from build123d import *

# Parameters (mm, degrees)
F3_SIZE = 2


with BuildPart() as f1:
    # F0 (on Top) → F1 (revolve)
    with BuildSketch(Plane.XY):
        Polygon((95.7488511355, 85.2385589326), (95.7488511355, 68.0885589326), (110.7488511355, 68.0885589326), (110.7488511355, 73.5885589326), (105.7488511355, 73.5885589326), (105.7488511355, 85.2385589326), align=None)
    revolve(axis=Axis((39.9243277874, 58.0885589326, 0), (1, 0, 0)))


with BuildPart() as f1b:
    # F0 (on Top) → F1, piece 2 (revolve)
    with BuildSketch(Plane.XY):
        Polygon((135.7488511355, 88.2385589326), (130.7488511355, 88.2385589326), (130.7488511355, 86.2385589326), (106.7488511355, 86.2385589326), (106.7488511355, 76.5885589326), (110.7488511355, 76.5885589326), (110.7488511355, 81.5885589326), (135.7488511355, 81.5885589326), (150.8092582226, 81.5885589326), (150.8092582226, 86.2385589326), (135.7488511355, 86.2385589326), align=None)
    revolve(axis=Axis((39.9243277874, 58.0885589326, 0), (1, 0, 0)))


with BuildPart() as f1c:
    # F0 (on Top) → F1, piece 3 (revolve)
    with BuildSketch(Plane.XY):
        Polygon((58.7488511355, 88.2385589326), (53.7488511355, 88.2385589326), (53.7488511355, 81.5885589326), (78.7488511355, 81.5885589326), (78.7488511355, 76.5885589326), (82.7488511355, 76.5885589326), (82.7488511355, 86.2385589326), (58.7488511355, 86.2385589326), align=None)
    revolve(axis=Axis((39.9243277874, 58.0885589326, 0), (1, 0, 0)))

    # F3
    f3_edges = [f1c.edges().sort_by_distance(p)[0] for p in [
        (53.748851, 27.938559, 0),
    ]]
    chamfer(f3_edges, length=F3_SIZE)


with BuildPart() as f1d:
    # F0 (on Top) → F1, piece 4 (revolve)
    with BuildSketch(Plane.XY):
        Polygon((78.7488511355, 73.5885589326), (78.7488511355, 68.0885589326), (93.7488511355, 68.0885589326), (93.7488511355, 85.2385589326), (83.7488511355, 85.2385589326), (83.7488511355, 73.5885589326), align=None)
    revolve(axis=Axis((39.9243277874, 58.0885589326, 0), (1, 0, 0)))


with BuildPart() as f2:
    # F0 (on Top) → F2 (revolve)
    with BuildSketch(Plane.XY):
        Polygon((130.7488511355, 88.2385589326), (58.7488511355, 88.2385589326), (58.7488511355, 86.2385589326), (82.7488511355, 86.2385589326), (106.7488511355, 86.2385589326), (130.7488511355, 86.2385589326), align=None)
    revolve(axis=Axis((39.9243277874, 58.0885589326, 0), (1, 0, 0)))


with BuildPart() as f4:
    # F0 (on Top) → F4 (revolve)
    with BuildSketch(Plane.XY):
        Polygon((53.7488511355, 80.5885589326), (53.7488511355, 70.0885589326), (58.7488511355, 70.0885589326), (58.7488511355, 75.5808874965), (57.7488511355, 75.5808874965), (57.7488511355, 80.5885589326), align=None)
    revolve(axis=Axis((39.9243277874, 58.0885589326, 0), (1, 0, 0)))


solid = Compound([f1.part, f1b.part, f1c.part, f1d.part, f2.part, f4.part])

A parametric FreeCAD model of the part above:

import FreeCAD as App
import Part
import Sketcher
from FreeCAD import Vector


def edges_at(feature, points):
    """Names of the edges that pass closest to the given points."""
    edges = feature.Shape.Edges
    near = lambda p: min(range(len(edges)), key=lambda i: edges[i].distToShape(Part.Vertex(*p))[0])
    return sorted({f"Edge{near(p) + 1}" for p in points})

doc = App.newDocument("Part")
body = doc.addObject("PartDesign::Body", "Body")

sketch1 = body.newObject("Sketcher::SketchObject", "Sketch")
sketch1.AttachmentSupport = (doc.getObject("XY_Plane"), [""])
sketch1.MapMode = "FlatFace"
sketch1.addGeometry([
    Part.LineSegment(Vector(96, 85, 0), Vector(96, 68, 0)),
    Part.LineSegment(Vector(96, 68, 0), Vector(111, 68, 0)),
    Part.LineSegment(Vector(111, 68, 0), Vector(111, 74, 0)),
    Part.LineSegment(Vector(111, 74, 0), Vector(106, 74, 0)),
    Part.LineSegment(Vector(106, 74, 0), Vector(106, 85, 0)),
    Part.LineSegment(Vector(106, 85, 0), Vector(96, 85, 0)),
], False)
sketch1.addGeometry(Part.LineSegment(Vector(96, 58, 0), Vector(111, 58, 0)), True)
sketch1.addConstraint([
    Sketcher.Constraint("Coincident", 0, 2, 1, 1),
    Sketcher.Constraint("Coincident", 1, 2, 2, 1),
    Sketcher.Constraint("Coincident", 2, 2, 3, 1),
    Sketcher.Constraint("Coincident", 3, 2, 4, 1),
    Sketcher.Constraint("Coincident", 4, 2, 5, 1),
    Sketcher.Constraint("Coincident", 5, 2, 0, 1),
    Sketcher.Constraint("Vertical", 0),
    Sketcher.Constraint("Horizontal", 1),
    Sketcher.Constraint("Vertical", 2),
    Sketcher.Constraint("Horizontal", 3),
    Sketcher.Constraint("Vertical", 4),
    Sketcher.Constraint("Horizontal", 5),
    Sketcher.Constraint("Horizontal", 6),
    Sketcher.Constraint("Vertical", 5, 2, 6, 1),
    Sketcher.Constraint("Vertical", 2, 2, 6, 2),
    Sketcher.Constraint("DistanceX", 1, 1, 1, 2, 15.0),
    Sketcher.Constraint("DistanceX", 3, 2, 3, 1, 5.0),
    Sketcher.Constraint("DistanceY", 2, 1, 2, 2, 5.5),
    Sketcher.Constraint("DistanceY", 6, 1, 0, 2, 10.0),
    Sketcher.Constraint("DistanceY", 0, 2, 0, 1, 17.15),
    Sketcher.Constraint("DistanceX", -1, 1, 0, 2, 95.748851),
    Sketcher.Constraint("DistanceY", -1, 1, 0, 2, 68.088559),
])
revolution = body.newObject("PartDesign::Revolution", "Revolution")
revolution.Profile = sketch1
revolution.ReferenceAxis = (sketch1, ["Axis0"])
revolution.Angle = 360
body2 = doc.addObject("PartDesign::Body", "Body001")

sketch2 = body2.newObject("Sketcher::SketchObject", "Sketch001")
sketch2.AttachmentSupport = (doc.getObject("XY_Plane001"), [""])
sketch2.MapMode = "FlatFace"
sketch2.addGeometry([
    Part.LineSegment(Vector(135.7, 88.2, 0), Vector(130.7, 88.2, 0)),
    Part.LineSegment(Vector(130.7, 88.2, 0), Vector(130.7, 86.2, 0)),
    Part.LineSegment(Vector(130.7, 86.2, 0), Vector(106.7, 86.2, 0)),
    Part.LineSegment(Vector(106.7, 86.2, 0), Vector(106.7, 76.6, 0)),
    Part.LineSegment(Vector(106.7, 76.6, 0), Vector(110.7, 76.6, 0)),
    Part.LineSegment(Vector(110.7, 76.6, 0), Vector(110.7, 81.6, 0)),
    Part.LineSegment(Vector(110.7, 81.6, 0), Vector(150.8, 81.6, 0)),
    Part.LineSegment(Vector(150.8, 81.6, 0), Vector(150.8, 86.2, 0)),
    Part.LineSegment(Vector(150.8, 86.2, 0), Vector(135.7, 86.2, 0)),
    Part.LineSegment(Vector(135.7, 86.2, 0), Vector(135.7, 88.2, 0)),
], False)
sketch2.addGeometry(Part.LineSegment(Vector(106.7, 58.1, 0), Vector(150.8, 58.1, 0)), True)
sketch2.addConstraint([
    Sketcher.Constraint("Coincident", 0, 2, 1, 1),
    Sketcher.Constraint("Coincident", 1, 2, 2, 1),
    Sketcher.Constraint("Coincident", 2, 2, 3, 1),
    Sketcher.Constraint("Coincident", 3, 2, 4, 1),
    Sketcher.Constraint("Coincident", 4, 2, 5, 1),
    Sketcher.Constraint("Coincident", 5, 2, 6, 1),
    Sketcher.Constraint("Coincident", 6, 2, 7, 1),
    Sketcher.Constraint("Coincident", 7, 2, 8, 1),
    Sketcher.Constraint("Coincident", 8, 2, 9, 1),
    Sketcher.Constraint("Coincident", 9, 2, 0, 1),
    Sketcher.Constraint("Horizontal", 0),
    Sketcher.Constraint("Vertical", 1),
    Sketcher.Constraint("Horizontal", 2),
    Sketcher.Constraint("Vertical", 3),
    Sketcher.Constraint("Horizontal", 4),
    Sketcher.Constraint("Vertical", 5),
    Sketcher.Constraint("Horizontal", 6),
    Sketcher.Constraint("Vertical", 7),
    Sketcher.Constraint("Horizontal", 8),
    Sketcher.Constraint("Vertical", 9),
    Sketcher.Constraint("Horizontal", 10),
    Sketcher.Constraint("Horizontal", 2, 2, 7, 2),
    Sketcher.Constraint("Vertical", 3, 2, 10, 1),
    Sketcher.Constraint("Vertical", 7, 2, 10, 2),
    Sketcher.Constraint("Equal", 0, 5),
    Sketcher.Constraint("DistanceX", 0, 2, 0, 1, 5.0),
    Sketcher.Constraint("DistanceX", 2, 2, 2, 1, 24.0),
    Sketcher.Constraint("DistanceX", 4, 1, 4, 2, 4.0),
    Sketcher.Constraint("DistanceY", 1, 2, 1, 1, 2.0),
    Sketcher.Constraint("DistanceY", 3, 2, 3, 1, 9.65),
    Sketcher.Constraint("DistanceY", 10, 1, 3, 2, 18.5),
    Sketcher.Constraint("DistanceX", 6, 1, 6, 2, 40.060407),
    Sketcher.Constraint("DistanceX", -1, 1, 0, 2, 130.748851),
    Sketcher.Constraint("DistanceY", -1, 1, 0, 2, 88.238559),
])
revolution2 = body2.newObject("PartDesign::Revolution", "Revolution001")
revolution2.Profile = sketch2
revolution2.ReferenceAxis = (sketch2, ["Axis0"])
revolution2.Angle = 360
body3 = doc.addObject("PartDesign::Body", "Body002")

sketch3 = body3.newObject("Sketcher::SketchObject", "Sketch002")
sketch3.AttachmentSupport = (doc.getObject("XY_Plane002"), [""])
sketch3.MapMode = "FlatFace"
sketch3.addGeometry([
    Part.LineSegment(Vector(58.7, 88.2, 0), Vector(53.7, 88.2, 0)),
    Part.LineSegment(Vector(53.7, 88.2, 0), Vector(53.7, 81.6, 0)),
    Part.LineSegment(Vector(53.7, 81.6, 0), Vector(78.7, 81.6, 0)),
    Part.LineSegment(Vector(78.7, 81.6, 0), Vector(78.7, 76.6, 0)),
    Part.LineSegment(Vector(78.7, 76.6, 0), Vector(82.7, 76.6, 0)),
    Part.LineSegment(Vector(82.7, 76.6, 0), Vector(82.7, 86.2, 0)),
    Part.LineSegment(Vector(82.7, 86.2, 0), Vector(58.7, 86.2, 0)),
    Part.LineSegment(Vector(58.7, 86.2, 0), Vector(58.7, 88.2, 0)),
], False)
sketch3.addGeometry(Part.LineSegment(Vector(53.7, 58.1, 0), Vector(82.7, 58.1, 0)), True)
sketch3.addConstraint([
    Sketcher.Constraint("Coincident", 0, 2, 1, 1),
    Sketcher.Constraint("Coincident", 1, 2, 2, 1),
    Sketcher.Constraint("Coincident", 2, 2, 3, 1),
    Sketcher.Constraint("Coincident", 3, 2, 4, 1),
    Sketcher.Constraint("Coincident", 4, 2, 5, 1),
    Sketcher.Constraint("Coincident", 5, 2, 6, 1),
    Sketcher.Constraint("Coincident", 6, 2, 7, 1),
    Sketcher.Constraint("Coincident", 7, 2, 0, 1),
    Sketcher.Constraint("Horizontal", 0),
    Sketcher.Constraint("Vertical", 1),
    Sketcher.Constraint("Horizontal", 2),
    Sketcher.Constraint("Vertical", 3),
    Sketcher.Constraint("Horizontal", 4),
    Sketcher.Constraint("Vertical", 5),
    Sketcher.Constraint("Horizontal", 6),
    Sketcher.Constraint("Vertical", 7),
    Sketcher.Constraint("Horizontal", 8),
    Sketcher.Constraint("Vertical", 1, 2, 8, 1),
    Sketcher.Constraint("Vertical", 5, 2, 8, 2),
    Sketcher.Constraint("Equal", 0, 3),
    Sketcher.Constraint("DistanceX", 0, 2, 0, 1, 5.0),
    Sketcher.Constraint("DistanceX", 2, 1, 2, 2, 25.0),
    Sketcher.Constraint("DistanceX", 4, 1, 4, 2, 4.0),
    Sketcher.Constraint("DistanceY", 7, 1, 7, 2, 2.0),
    Sketcher.Constraint("DistanceY", 1, 2, 1, 1, 6.65),
    Sketcher.Constraint("DistanceY", 8, 1, 1, 2, 23.5),
    Sketcher.Constraint("DistanceX", -1, 1, 0, 2, 53.748851),
    Sketcher.Constraint("DistanceY", -1, 1, 0, 2, 88.238559),
])
revolution3 = body3.newObject("PartDesign::Revolution", "Revolution002")
revolution3.Profile = sketch3
revolution3.ReferenceAxis = (sketch3, ["Axis0"])
revolution3.Angle = 360
doc.recompute()

chamfer = body3.newObject("PartDesign::Chamfer", "Chamfer")
chamfer.Base = (revolution3, edges_at(revolution3, [(53.749, 27.939, 0)]))
chamfer.Size = 2
body4 = doc.addObject("PartDesign::Body", "Body003")

sketch4 = body4.newObject("Sketcher::SketchObject", "Sketch003")
sketch4.AttachmentSupport = (doc.getObject("XY_Plane003"), [""])
sketch4.MapMode = "FlatFace"
sketch4.addGeometry([
    Part.LineSegment(Vector(79, 74, 0), Vector(79, 68, 0)),
    Part.LineSegment(Vector(79, 68, 0), Vector(94, 68, 0)),
    Part.LineSegment(Vector(94, 68, 0), Vector(94, 85, 0)),
    Part.LineSegment(Vector(94, 85, 0), Vector(84, 85, 0)),
    Part.LineSegment(Vector(84, 85, 0), Vector(84, 74, 0)),
    Part.LineSegment(Vector(84, 74, 0), Vector(79, 74, 0)),
], False)
sketch4.addGeometry(Part.LineSegment(Vector(79, 58, 0), Vector(94, 58, 0)), True)
sketch4.addConstraint([
    Sketcher.Constraint("Coincident", 0, 2, 1, 1),
    Sketcher.Constraint("Coincident", 1, 2, 2, 1),
    Sketcher.Constraint("Coincident", 2, 2, 3, 1),
    Sketcher.Constraint("Coincident", 3, 2, 4, 1),
    Sketcher.Constraint("Coincident", 4, 2, 5, 1),
    Sketcher.Constraint("Coincident", 5, 2, 0, 1),
    Sketcher.Constraint("Vertical", 0),
    Sketcher.Constraint("Horizontal", 1),
    Sketcher.Constraint("Vertical", 2),
    Sketcher.Constraint("Horizontal", 3),
    Sketcher.Constraint("Vertical", 4),
    Sketcher.Constraint("Horizontal", 5),
    Sketcher.Constraint("Horizontal", 6),
    Sketcher.Constraint("Vertical", 5, 2, 6, 1),
    Sketcher.Constraint("Vertical", 2, 2, 6, 2),
    Sketcher.Constraint("DistanceX", 1, 1, 1, 2, 15.0),
    Sketcher.Constraint("DistanceX", 3, 2, 3, 1, 10.0),
    Sketcher.Constraint("DistanceY", 0, 2, 0, 1, 5.5),
    Sketcher.Constraint("DistanceY", 6, 1, 0, 2, 10.0),
    Sketcher.Constraint("DistanceY", 2, 1, 2, 2, 17.15),
    Sketcher.Constraint("DistanceX", -1, 1, 0, 2, 78.748851),
    Sketcher.Constraint("DistanceY", -1, 1, 0, 2, 68.088559),
])
revolution4 = body4.newObject("PartDesign::Revolution", "Revolution003")
revolution4.Profile = sketch4
revolution4.ReferenceAxis = (sketch4, ["Axis0"])
revolution4.Angle = 360
body5 = doc.addObject("PartDesign::Body", "Body004")

sketch5 = body5.newObject("Sketcher::SketchObject", "Sketch004")
sketch5.AttachmentSupport = (doc.getObject("XY_Plane004"), [""])
sketch5.MapMode = "FlatFace"
sketch5.addGeometry([
    Part.LineSegment(Vector(130.7, 88.2, 0), Vector(58.7, 88.2, 0)),
    Part.LineSegment(Vector(58.7, 88.2, 0), Vector(58.7, 86.2, 0)),
    Part.LineSegment(Vector(58.7, 86.2, 0), Vector(130.7, 86.2, 0)),
    Part.LineSegment(Vector(130.7, 86.2, 0), Vector(130.7, 88.2, 0)),
], False)
sketch5.addGeometry(Part.LineSegment(Vector(58.7, 58.1, 0), Vector(130.7, 58.1, 0)), True)
sketch5.addConstraint([
    Sketcher.Constraint("Coincident", 0, 2, 1, 1),
    Sketcher.Constraint("Coincident", 1, 2, 2, 1),
    Sketcher.Constraint("Coincident", 2, 2, 3, 1),
    Sketcher.Constraint("Coincident", 3, 2, 0, 1),
    Sketcher.Constraint("Horizontal", 0),
    Sketcher.Constraint("Vertical", 1),
    Sketcher.Constraint("Horizontal", 2),
    Sketcher.Constraint("Vertical", 3),
    Sketcher.Constraint("Horizontal", 4),
    Sketcher.Constraint("Vertical", 1, 2, 4, 1),
    Sketcher.Constraint("Vertical", 3, 2, 4, 2),
    Sketcher.Constraint("DistanceX", 0, 2, 0, 1, 72.0),
    Sketcher.Constraint("DistanceY", 1, 2, 1, 1, 2.0),
    Sketcher.Constraint("DistanceY", 4, 1, 1, 2, 28.15),
    Sketcher.Constraint("DistanceX", -1, 1, 0, 2, 58.748851),
    Sketcher.Constraint("DistanceY", -1, 1, 0, 2, 88.238559),
])
revolution5 = body5.newObject("PartDesign::Revolution", "Revolution004")
revolution5.Profile = sketch5
revolution5.ReferenceAxis = (sketch5, ["Axis0"])
revolution5.Angle = 360
body6 = doc.addObject("PartDesign::Body", "Body005")

sketch6 = body6.newObject("Sketcher::SketchObject", "Sketch005")
sketch6.AttachmentSupport = (doc.getObject("XY_Plane005"), [""])
sketch6.MapMode = "FlatFace"
sketch6.addGeometry([
    Part.LineSegment(Vector(53.7, 80.6, 0), Vector(53.7, 70.1, 0)),
    Part.LineSegment(Vector(53.7, 70.1, 0), Vector(58.7, 70.1, 0)),
    Part.LineSegment(Vector(58.7, 70.1, 0), Vector(58.7, 75.6, 0)),
    Part.LineSegment(Vector(58.7, 75.6, 0), Vector(57.7, 75.6, 0)),
    Part.LineSegment(Vector(57.7, 75.6, 0), Vector(57.7, 80.6, 0)),
    Part.LineSegment(Vector(57.7, 80.6, 0), Vector(53.7, 80.6, 0)),
], False)
sketch6.addGeometry(Part.LineSegment(Vector(53.7, 58.1, 0), Vector(58.7, 58.1, 0)), True)
sketch6.addConstraint([
    Sketcher.Constraint("Coincident", 0, 2, 1, 1),
    Sketcher.Constraint("Coincident", 1, 2, 2, 1),
    Sketcher.Constraint("Coincident", 2, 2, 3, 1),
    Sketcher.Constraint("Coincident", 3, 2, 4, 1),
    Sketcher.Constraint("Coincident", 4, 2, 5, 1),
    Sketcher.Constraint("Coincident", 5, 2, 0, 1),
    Sketcher.Constraint("Vertical", 0),
    Sketcher.Constraint("Horizontal", 1),
    Sketcher.Constraint("Vertical", 2),
    Sketcher.Constraint("Horizontal", 3),
    Sketcher.Constraint("Vertical", 4),
    Sketcher.Constraint("Horizontal", 5),
    Sketcher.Constraint("Horizontal", 6),
    Sketcher.Constraint("Vertical", 5, 2, 6, 1),
    Sketcher.Constraint("Vertical", 2, 2, 6, 2),
    Sketcher.Constraint("DistanceX", 1, 1, 1, 2, 5.0),
    Sketcher.Constraint("DistanceX", 3, 2, 3, 1, 1.0),
    Sketcher.Constraint("DistanceY", 0, 2, 0, 1, 10.5),
    Sketcher.Constraint("DistanceY", 6, 1, 0, 2, 12.0),
    Sketcher.Constraint("DistanceY", 2, 1, 2, 2, 5.492329),
    Sketcher.Constraint("DistanceX", -1, 1, 0, 2, 53.748851),
    Sketcher.Constraint("DistanceY", -1, 1, 0, 2, 70.088559),
])
revolution6 = body6.newObject("PartDesign::Revolution", "Revolution005")
revolution6.Profile = sketch6
revolution6.ReferenceAxis = (sketch6, ["Axis0"])
revolution6.Angle = 360

doc.recompute()
